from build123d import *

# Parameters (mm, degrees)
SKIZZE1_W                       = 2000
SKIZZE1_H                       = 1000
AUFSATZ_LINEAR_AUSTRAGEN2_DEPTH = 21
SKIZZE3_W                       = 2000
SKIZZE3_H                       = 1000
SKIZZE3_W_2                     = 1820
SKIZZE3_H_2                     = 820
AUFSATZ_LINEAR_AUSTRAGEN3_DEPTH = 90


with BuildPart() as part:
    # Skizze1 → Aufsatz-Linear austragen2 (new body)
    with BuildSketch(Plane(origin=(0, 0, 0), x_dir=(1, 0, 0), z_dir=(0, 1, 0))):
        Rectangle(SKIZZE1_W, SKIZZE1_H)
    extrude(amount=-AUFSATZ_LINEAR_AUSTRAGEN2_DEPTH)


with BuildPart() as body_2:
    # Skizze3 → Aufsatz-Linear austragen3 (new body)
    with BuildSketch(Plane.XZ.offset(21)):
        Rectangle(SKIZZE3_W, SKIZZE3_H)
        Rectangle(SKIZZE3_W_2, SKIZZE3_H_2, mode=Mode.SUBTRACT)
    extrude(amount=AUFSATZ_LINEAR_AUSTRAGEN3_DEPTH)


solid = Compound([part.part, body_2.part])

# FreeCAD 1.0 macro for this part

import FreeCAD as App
import Part
import Sketcher


def add_polygon(sketch, points):
    """Adds a closed chain of lines whose ends are joined by coincident constraints."""
    first, n = sketch.GeometryCount, len(points)
    for a, b in zip(points, points[1:] + points[:1]):
        sketch.addGeometry(Part.LineSegment(App.Vector(*a, 0), App.Vector(*b, 0)), False)
    for i in range(n):
        sketch.addConstraint(Sketcher.Constraint("Coincident", first + i, 2, first + (i + 1) % n, 1))

doc = App.newDocument("Part")
params = doc.addObject("Spreadsheet::Sheet", "Params")
for row, (alias, value) in enumerate([
    ("sketch1_width", "2000 mm"),
    ("sketch1_height", "1000 mm"),
    ("pad1_length", "21 mm"),
    ("sketch2_width", "2000 mm"),
    ("sketch2_width2", "1820 mm"),
    ("sketch2_height", "1000 mm"),
    ("sketch2_height2", "820 mm"),
    ("pad2_length", "90 mm"),
], start=1):
    params.set(f"A{row}", alias)
    params.set(f"B{row}", "=" + value)
    params.setAlias(f"B{row}", alias)

body = doc.addObject("PartDesign::Body", "Body")

# Sketch on XZ plane
sketch1 = body.newObject("Sketcher::SketchObject", "Sketch")
sketch1.AttachmentSupport = (doc.getObject("XZ_Plane"), [""])
sketch1.MapMode = "FlatFace"
add_polygon(sketch1, [(-1000, -500), (-1000, 500), (1000, 500), (1000, -500)])  # lines 0-3
sketch1.addConstraint([
    Sketcher.Constraint("Vertical", 0),
    Sketcher.Constraint("Horizontal", 1),
    Sketcher.Constraint("Vertical", 2),
    Sketcher.Constraint("Horizontal", 3),
    Sketcher.Constraint("Symmetric", 0, 2, 2, 2, -1, 1),
    Sketcher.Constraint("DistanceX", 1, 1, 1, 2, 2000.0),
    Sketcher.Constraint("DistanceY", 0, 1, 0, 2, 1000.0),
])
sketch1.setExpression("Constraints[9]", "Params.sketch1_width")
sketch1.setExpression("Constraints[10]", "Params.sketch1_height")
pad1 = body.newObject("PartDesign::Pad", "Pad")
pad1.Profile = sketch1
pad1.setExpression("Length", "Params.pad1_length")
body2 = doc.addObject("PartDesign::Body", "Body001")

# Sketch on XZ plane
sketch2 = body2.newObject("Sketcher::SketchObject", "Sketch001")
sketch2.AttachmentSupport = (doc.getObject("XZ_Plane001"), [""])
sketch2.MapMode = "FlatFace"
sketch2.AttachmentOffset = App.Placement(App.Vector(0, 0, 21), App.Rotation())
add_polygon(sketch2, [(-1000, 500), (-1000, -500), (1000, -500), (1000, 500)])  # lines 0-3
add_polygon(sketch2, [(910, -410), (-910, -410), (-910, 410), (910, 410)])  # lines 4-7
sketch2.addConstraint([
    Sketcher.Constraint("Vertical", 0),
    Sketcher.Constraint("Horizontal", 1),
    Sketcher.Constraint("Vertical", 2),
    Sketcher.Constraint("Horizontal", 3),
    Sketcher.Constraint("Horizontal", 4),
    Sketcher.Constraint("Vertical", 5),
    Sketcher.Constraint("Horizontal", 6),
    Sketcher.Constraint("Vertical", 7),
    Sketcher.Constraint("Symmetric", 0, 2, 2, 2, -1, 1),
    Sketcher.Constraint("Symmetric", 4, 2, 6, 2, -1, 1),
    Sketcher.Constraint("DistanceX", 1, 1, 1, 2, 2000.0),
    Sketcher.Constraint("DistanceX", 4, 2, 4, 1, 1820.0),
    Sketcher.Constraint("DistanceY", 0, 2, 0, 1, 1000.0),
    Sketcher.Constraint("DistanceY", 5, 1, 5, 2, 820.0),
])
sketch2.setExpression("Constraints[18]", "Params.sketch2_width")
sketch2.setExpression("Constraints[19]", "Params.sketch2_width2")
sketch2.setExpression("Constraints[20]", "Params.sketch2_height")
sketch2.setExpression("Constraints[21]", "Params.sketch2_height2")
pad2 = body2.newObject("PartDesign::Pad", "Pad001")
pad2.Profile = sketch2
pad2.setExpression("Length", "Params.pad2_length")

doc.recompute()
